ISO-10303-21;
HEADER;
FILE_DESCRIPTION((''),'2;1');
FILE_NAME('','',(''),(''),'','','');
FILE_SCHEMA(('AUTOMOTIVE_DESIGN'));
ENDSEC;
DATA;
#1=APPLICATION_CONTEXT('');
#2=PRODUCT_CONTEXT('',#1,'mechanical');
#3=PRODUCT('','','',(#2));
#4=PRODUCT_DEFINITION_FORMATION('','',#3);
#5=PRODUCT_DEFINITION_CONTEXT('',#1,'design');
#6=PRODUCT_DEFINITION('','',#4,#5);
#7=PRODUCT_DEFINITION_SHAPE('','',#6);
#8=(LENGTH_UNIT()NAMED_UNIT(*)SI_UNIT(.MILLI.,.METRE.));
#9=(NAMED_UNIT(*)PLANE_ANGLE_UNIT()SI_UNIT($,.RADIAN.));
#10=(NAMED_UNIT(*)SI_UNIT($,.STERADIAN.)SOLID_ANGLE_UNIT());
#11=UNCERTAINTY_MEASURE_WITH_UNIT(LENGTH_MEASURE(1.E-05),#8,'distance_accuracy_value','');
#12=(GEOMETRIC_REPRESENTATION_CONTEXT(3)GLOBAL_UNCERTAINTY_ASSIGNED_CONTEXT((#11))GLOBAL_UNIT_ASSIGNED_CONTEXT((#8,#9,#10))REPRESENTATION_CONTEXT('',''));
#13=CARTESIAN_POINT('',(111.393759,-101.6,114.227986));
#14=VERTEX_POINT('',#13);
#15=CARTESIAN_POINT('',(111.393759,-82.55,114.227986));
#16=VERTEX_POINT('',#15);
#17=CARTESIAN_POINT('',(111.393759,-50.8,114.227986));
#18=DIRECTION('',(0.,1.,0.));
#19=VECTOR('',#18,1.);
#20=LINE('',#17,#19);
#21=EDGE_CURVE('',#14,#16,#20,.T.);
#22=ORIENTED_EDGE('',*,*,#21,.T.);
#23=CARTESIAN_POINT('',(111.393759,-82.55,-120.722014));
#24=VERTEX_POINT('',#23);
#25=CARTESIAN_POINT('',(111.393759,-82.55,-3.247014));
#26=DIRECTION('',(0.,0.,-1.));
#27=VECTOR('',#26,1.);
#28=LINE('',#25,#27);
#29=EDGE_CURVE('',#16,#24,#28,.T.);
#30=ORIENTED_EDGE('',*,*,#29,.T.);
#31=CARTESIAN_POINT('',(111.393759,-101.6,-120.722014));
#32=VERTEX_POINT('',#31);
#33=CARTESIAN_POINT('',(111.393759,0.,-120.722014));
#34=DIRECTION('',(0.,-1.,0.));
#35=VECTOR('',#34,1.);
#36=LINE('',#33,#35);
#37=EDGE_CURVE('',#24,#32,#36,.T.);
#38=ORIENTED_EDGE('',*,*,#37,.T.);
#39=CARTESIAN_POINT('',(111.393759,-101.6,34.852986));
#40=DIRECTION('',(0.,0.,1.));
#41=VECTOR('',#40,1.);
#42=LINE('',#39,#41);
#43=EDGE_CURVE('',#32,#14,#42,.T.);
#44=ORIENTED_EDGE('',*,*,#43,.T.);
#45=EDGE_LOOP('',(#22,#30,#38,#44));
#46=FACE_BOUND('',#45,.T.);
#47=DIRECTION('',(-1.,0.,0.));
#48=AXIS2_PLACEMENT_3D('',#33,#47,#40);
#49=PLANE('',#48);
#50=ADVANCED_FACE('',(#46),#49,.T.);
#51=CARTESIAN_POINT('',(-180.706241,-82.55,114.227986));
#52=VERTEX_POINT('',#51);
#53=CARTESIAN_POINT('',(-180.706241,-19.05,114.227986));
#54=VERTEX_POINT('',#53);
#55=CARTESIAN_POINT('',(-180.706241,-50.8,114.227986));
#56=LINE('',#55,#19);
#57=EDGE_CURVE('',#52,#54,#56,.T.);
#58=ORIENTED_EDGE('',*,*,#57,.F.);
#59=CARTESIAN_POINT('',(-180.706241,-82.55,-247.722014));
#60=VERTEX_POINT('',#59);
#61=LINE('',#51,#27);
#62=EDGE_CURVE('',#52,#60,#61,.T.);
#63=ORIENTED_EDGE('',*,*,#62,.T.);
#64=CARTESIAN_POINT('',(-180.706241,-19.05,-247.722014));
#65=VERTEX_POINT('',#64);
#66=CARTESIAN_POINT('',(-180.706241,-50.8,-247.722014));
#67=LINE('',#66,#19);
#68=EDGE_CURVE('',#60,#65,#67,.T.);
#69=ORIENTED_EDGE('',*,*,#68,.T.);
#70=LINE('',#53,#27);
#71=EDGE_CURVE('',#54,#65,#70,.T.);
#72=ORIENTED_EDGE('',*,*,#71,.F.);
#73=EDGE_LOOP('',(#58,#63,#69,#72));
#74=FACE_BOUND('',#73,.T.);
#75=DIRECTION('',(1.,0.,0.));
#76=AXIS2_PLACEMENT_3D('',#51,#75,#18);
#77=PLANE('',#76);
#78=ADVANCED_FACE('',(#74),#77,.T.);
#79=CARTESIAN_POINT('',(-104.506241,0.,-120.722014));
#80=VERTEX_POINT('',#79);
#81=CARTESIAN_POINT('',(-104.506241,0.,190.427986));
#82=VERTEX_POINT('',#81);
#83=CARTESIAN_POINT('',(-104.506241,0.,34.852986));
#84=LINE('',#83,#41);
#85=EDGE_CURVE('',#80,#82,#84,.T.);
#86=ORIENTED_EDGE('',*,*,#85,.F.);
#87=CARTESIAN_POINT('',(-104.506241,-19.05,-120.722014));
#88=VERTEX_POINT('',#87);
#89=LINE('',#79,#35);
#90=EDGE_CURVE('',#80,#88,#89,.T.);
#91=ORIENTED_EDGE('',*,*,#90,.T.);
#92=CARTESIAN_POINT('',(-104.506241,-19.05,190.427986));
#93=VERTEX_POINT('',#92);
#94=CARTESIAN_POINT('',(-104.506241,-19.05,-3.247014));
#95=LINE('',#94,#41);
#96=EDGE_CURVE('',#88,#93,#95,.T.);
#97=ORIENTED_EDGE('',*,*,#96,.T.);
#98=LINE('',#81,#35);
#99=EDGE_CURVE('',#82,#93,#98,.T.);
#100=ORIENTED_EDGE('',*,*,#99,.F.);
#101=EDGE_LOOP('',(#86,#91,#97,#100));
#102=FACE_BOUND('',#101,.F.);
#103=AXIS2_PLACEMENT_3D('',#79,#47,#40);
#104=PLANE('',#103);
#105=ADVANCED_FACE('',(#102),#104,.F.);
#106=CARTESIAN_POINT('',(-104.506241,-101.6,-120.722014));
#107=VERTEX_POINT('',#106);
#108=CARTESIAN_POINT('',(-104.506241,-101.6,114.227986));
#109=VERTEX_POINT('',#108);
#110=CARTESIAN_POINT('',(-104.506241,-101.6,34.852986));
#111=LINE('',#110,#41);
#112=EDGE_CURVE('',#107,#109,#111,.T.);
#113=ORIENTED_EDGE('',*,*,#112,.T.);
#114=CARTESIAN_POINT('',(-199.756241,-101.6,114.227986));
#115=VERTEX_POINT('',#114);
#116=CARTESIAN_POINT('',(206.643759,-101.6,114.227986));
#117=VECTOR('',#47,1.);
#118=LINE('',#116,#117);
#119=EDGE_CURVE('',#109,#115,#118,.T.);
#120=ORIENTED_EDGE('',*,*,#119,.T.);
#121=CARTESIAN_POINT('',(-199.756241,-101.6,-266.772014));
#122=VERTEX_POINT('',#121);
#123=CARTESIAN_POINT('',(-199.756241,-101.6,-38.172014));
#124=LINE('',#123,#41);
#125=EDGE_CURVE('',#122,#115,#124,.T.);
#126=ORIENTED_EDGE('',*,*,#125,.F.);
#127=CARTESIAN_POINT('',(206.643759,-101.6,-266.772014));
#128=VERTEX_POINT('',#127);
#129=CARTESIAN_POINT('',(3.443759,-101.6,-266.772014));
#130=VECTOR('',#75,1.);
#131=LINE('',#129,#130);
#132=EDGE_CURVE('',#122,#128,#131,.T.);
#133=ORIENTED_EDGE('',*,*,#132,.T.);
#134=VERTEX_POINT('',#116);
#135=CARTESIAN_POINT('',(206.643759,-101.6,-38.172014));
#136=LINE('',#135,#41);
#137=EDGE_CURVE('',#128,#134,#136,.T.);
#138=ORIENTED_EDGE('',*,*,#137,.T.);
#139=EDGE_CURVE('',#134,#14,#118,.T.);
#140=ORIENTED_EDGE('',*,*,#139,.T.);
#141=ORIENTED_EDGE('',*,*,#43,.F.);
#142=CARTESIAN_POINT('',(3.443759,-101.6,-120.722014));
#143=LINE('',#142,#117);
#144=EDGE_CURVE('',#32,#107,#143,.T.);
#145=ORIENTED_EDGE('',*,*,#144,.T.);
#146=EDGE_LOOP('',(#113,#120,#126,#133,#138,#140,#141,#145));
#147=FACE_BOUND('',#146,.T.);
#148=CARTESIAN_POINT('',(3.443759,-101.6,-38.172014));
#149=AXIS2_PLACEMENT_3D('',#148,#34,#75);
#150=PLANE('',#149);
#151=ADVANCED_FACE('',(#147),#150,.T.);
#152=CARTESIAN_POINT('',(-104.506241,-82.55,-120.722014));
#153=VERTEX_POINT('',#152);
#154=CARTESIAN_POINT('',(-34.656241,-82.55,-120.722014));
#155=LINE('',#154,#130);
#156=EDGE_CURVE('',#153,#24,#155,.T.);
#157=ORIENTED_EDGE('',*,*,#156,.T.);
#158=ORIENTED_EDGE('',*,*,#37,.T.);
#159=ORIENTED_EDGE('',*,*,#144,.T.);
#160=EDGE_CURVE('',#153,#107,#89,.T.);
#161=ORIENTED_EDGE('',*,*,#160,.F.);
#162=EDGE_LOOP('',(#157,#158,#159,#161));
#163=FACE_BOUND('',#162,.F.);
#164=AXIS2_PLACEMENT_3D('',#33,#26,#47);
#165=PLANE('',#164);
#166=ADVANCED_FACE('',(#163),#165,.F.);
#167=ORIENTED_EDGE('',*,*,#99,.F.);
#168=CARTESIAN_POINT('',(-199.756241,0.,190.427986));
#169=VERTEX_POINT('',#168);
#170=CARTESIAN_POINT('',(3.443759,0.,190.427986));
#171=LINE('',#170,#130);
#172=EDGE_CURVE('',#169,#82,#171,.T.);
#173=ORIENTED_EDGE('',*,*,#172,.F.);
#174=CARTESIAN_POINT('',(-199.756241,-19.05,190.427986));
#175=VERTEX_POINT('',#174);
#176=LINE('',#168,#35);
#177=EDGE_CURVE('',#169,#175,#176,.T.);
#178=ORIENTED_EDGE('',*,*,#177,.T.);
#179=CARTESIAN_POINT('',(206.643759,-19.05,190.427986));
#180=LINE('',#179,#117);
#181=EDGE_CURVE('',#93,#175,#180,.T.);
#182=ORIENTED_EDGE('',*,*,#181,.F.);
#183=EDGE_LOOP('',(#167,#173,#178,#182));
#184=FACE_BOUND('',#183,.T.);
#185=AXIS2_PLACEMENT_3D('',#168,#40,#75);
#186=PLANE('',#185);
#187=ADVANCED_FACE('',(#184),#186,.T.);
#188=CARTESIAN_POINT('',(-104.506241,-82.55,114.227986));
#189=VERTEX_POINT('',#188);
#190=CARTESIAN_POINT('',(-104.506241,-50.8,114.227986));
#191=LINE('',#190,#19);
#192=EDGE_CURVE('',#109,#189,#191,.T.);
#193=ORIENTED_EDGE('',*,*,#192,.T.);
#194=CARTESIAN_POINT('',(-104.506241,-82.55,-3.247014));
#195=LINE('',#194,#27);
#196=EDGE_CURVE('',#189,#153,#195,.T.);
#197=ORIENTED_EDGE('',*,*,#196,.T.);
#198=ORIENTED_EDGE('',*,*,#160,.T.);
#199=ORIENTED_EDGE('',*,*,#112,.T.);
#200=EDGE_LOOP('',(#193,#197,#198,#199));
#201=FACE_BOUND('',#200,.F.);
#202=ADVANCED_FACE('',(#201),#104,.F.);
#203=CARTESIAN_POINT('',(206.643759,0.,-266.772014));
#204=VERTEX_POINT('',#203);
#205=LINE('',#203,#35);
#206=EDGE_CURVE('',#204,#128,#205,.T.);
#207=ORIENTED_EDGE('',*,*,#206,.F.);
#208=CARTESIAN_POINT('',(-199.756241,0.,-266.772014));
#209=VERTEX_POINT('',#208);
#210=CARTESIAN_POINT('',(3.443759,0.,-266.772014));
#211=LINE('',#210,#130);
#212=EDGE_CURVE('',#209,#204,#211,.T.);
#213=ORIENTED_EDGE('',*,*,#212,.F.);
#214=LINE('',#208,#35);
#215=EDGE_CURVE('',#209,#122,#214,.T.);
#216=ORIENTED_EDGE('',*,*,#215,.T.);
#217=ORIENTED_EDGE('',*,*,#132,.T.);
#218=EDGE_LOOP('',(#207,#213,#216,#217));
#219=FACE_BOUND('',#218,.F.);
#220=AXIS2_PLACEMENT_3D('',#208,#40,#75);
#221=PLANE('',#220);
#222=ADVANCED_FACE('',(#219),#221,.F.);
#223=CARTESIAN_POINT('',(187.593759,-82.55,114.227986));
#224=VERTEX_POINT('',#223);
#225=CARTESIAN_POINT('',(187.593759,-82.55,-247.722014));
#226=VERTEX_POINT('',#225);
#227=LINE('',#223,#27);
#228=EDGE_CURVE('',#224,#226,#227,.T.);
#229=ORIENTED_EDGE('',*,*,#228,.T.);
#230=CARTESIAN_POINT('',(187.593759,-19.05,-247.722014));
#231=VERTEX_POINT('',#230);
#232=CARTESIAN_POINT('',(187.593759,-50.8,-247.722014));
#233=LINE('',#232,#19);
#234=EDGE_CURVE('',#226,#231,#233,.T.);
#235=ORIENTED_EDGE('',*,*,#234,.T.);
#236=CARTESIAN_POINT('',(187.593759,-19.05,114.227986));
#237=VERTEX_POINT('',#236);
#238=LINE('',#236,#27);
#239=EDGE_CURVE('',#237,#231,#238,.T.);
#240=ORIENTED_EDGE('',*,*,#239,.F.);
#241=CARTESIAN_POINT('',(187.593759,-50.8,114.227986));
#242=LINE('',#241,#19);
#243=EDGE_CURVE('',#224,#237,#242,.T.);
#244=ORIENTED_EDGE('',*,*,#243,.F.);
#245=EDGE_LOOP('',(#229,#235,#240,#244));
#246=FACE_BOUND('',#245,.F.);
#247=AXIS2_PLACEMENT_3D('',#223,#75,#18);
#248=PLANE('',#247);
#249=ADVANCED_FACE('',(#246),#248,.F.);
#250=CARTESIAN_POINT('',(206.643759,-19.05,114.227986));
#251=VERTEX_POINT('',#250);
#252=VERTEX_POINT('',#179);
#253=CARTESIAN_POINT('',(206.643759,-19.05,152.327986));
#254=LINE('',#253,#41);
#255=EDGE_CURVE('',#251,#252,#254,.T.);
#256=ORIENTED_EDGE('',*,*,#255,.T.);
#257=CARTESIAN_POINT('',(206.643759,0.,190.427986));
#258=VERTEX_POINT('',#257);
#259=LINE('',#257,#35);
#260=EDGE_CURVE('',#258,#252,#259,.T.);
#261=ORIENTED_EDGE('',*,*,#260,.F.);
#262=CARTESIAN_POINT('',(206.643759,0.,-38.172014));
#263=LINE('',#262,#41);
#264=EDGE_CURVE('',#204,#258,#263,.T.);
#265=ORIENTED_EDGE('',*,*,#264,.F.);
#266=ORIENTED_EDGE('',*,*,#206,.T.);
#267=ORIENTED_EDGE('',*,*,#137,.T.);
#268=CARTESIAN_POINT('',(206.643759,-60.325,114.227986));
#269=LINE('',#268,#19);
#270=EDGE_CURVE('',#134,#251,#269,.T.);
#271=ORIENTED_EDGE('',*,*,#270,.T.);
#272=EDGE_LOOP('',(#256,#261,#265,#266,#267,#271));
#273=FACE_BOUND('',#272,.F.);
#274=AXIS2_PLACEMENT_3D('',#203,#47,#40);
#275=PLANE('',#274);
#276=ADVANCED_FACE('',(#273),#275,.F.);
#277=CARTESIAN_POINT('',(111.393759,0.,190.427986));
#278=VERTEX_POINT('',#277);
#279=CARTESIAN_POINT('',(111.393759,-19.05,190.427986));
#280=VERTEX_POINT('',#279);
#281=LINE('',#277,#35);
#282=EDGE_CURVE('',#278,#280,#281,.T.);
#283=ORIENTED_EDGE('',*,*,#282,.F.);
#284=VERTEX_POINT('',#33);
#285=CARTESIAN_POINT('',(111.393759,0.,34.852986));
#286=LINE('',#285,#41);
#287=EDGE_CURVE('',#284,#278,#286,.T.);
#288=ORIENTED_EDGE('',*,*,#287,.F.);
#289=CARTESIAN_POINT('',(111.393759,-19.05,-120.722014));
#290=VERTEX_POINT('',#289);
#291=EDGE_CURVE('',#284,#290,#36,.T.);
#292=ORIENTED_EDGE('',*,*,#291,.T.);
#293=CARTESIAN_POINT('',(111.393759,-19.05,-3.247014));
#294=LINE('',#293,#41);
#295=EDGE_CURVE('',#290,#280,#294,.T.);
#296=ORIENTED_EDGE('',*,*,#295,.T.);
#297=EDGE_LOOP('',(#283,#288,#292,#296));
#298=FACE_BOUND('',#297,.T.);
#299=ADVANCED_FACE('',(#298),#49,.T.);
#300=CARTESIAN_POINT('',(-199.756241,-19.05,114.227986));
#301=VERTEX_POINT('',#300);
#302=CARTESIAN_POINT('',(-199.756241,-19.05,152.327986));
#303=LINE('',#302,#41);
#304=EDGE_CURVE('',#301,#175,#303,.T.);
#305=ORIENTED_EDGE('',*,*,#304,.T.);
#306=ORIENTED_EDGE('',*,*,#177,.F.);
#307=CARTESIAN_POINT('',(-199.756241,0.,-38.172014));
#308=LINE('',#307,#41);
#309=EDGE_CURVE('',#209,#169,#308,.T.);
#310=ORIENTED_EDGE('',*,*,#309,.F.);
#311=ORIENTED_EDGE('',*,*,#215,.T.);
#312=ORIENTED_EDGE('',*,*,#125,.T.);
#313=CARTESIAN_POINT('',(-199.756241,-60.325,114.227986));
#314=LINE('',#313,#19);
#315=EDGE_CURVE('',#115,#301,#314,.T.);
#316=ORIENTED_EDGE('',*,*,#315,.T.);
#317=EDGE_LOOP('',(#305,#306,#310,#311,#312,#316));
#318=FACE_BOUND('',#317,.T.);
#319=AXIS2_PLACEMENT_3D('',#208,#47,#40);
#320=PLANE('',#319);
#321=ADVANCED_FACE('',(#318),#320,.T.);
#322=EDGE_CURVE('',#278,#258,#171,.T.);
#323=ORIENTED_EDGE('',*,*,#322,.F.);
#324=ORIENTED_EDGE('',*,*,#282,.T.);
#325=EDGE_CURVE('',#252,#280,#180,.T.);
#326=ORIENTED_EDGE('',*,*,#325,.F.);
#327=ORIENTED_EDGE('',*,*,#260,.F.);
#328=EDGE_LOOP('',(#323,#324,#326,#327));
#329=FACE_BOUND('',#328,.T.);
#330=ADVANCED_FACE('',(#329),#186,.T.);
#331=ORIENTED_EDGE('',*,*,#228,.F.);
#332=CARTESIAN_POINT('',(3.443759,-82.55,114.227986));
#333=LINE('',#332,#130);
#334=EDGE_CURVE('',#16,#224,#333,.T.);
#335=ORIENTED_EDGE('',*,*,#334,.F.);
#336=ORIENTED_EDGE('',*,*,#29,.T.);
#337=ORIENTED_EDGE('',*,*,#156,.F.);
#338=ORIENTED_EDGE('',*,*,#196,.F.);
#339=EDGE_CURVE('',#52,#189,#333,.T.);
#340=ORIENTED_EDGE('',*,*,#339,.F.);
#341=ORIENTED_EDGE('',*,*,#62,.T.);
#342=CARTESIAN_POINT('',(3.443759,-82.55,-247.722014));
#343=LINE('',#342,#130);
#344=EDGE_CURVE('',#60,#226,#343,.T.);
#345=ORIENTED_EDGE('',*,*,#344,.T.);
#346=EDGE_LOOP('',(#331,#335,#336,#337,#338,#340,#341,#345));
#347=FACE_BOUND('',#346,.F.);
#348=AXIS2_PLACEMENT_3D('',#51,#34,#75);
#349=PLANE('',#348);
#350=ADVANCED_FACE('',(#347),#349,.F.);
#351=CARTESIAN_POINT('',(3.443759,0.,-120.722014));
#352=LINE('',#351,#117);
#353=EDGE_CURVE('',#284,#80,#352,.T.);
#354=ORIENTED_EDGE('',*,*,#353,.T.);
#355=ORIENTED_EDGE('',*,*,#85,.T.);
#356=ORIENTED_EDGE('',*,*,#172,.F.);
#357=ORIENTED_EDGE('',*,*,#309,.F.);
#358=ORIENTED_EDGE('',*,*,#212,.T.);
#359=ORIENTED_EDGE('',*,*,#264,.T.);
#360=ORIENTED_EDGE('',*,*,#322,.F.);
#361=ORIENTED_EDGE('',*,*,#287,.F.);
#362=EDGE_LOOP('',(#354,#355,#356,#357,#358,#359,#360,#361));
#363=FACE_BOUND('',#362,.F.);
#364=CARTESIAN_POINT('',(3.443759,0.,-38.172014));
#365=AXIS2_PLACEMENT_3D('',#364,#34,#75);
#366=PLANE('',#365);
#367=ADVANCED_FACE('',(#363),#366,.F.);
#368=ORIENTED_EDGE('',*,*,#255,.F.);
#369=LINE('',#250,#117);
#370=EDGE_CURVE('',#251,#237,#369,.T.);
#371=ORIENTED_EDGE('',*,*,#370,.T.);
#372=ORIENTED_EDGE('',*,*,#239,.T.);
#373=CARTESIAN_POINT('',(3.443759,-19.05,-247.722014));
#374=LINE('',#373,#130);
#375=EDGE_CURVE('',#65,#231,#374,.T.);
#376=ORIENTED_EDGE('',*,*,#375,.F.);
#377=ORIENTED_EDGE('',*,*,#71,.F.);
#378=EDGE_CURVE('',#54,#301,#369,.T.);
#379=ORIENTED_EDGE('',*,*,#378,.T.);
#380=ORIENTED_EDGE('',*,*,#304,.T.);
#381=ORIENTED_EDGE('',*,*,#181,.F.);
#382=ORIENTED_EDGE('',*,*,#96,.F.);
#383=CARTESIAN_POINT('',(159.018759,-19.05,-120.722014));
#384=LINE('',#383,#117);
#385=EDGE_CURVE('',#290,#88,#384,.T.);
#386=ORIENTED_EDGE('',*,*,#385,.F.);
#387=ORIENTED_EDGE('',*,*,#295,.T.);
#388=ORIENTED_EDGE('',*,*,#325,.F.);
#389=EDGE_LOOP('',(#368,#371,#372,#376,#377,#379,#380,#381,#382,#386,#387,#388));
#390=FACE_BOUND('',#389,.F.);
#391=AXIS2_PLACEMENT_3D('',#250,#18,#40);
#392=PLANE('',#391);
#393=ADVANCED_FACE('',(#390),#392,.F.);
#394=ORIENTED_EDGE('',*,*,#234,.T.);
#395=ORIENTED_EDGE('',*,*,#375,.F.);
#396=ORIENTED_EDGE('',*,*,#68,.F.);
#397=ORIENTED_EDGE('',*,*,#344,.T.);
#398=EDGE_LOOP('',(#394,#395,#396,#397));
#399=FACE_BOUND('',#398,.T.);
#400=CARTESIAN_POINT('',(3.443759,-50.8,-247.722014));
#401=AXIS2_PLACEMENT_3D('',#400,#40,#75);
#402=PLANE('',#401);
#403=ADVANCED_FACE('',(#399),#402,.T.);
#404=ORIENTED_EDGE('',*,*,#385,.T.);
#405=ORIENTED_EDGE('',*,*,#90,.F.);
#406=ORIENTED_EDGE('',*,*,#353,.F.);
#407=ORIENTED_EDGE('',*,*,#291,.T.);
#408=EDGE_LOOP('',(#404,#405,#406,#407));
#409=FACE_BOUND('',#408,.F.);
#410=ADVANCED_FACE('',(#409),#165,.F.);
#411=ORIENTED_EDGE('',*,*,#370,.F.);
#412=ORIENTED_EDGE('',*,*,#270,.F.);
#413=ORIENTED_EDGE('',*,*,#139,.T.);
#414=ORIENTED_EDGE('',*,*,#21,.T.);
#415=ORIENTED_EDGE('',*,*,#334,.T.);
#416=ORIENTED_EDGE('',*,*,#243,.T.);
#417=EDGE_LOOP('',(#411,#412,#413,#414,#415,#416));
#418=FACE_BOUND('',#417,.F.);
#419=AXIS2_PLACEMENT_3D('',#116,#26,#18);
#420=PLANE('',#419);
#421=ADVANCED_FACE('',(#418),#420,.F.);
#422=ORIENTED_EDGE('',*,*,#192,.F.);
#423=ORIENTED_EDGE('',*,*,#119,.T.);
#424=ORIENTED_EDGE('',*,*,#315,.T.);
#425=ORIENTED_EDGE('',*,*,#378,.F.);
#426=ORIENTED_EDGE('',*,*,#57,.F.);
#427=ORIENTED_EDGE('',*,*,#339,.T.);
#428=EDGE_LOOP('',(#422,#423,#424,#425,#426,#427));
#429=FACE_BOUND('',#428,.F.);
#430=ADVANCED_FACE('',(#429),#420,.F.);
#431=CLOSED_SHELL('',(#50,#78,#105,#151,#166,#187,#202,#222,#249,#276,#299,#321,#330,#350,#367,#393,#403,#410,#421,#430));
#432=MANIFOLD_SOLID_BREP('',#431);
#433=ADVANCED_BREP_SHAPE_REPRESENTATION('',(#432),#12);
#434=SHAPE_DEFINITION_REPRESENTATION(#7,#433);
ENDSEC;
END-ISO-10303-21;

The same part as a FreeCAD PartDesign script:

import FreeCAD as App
import Part
import Sketcher
Q = App.Units.Quantity


def add_polygon(sketch, points):
    """Adds a closed chain of lines whose ends are joined by coincident constraints."""
    first, n = sketch.GeometryCount, len(points)
    for a, b in zip(points, points[1:] + points[:1]):
        sketch.addGeometry(Part.LineSegment(App.Vector(*a, 0), App.Vector(*b, 0)), False)
    for i in range(n):
        sketch.addConstraint(Sketcher.Constraint("Coincident", first + i, 2, first + (i + 1) % n, 1))

doc = App.newDocument("Part")
body = doc.addObject("PartDesign::Body", "Body")

sketch1 = doc.addObject("Sketcher::SketchObject", "Sketch")
body.addObject(sketch1)
sketch1.AttachmentSupport = (doc.XZ_Plane, [""])
sketch1.MapMode = "FlatFace"
add_polygon(sketch1, [(-200, 190), (-200, -267), (207, -267), (207, 190)])
sketch1.addConstraint([
    Sketcher.Constraint("Vertical", 0),
    Sketcher.Constraint("Horizontal", 1),
    Sketcher.Constraint("Vertical", 2),
    Sketcher.Constraint("Horizontal", 3),
    Sketcher.Constraint("DistanceX", 1, 1, 1, 2, Q("16 in")),
    Sketcher.Constraint("DistanceY", 0, 2, 0, 1, Q("18 in")),
    Sketcher.Constraint("DistanceX", 0, 2, -1, 1, 199.756241),
    Sketcher.Constraint("DistanceY", 0, 2, -1, 1, 266.772014),
])
pad1 = doc.addObject("PartDesign::Pad", "Pad")
body.addObject(pad1)
pad1.Profile = sketch1
pad1.Length = Q("4 in")

sketch2 = doc.addObject("Sketcher::SketchObject", "Sketch001")
body.addObject(sketch2)
sketch2.AttachmentSupport = (doc.YZ_Plane, [""])
sketch2.MapMode = "FlatFace"
sketch2.AttachmentOffset = App.Placement(App.Vector(0, 0, 206.643759), App.Rotation())
add_polygon(sketch2, [(-102, 190), (-102, 114), (-19, 114), (-19, 190)])
sketch2.addConstraint([
    Sketcher.Constraint("Vertical", 0),
    Sketcher.Constraint("Horizontal", 1),
    Sketcher.Constraint("Vertical", 2),
    Sketcher.Constraint("Horizontal", 3),
    Sketcher.Constraint("DistanceY", 0, 2, 0, 1, Q("3 in")),
    Sketcher.Constraint("DistanceX", 0, 2, -1, 1, Q("4 in")),
    Sketcher.Constraint("DistanceX", 1, 1, 1, 2, Q("3.25 in")),
    Sketcher.Constraint("DistanceY", -1, 1, 0, 2, 114.227986),
])
pocket1 = doc.addObject("PartDesign::Pocket", "Pocket")
body.addObject(pocket1)
pocket1.Profile = sketch2
pocket1.Length = Q("16 in")

sketch3 = doc.addObject("Sketcher::SketchObject", "Sketch002")
body.addObject(sketch3)
sketch3.AttachmentSupport = (doc.XY_Plane, [""])
sketch3.MapMode = "FlatFace"
sketch3.AttachmentOffset = App.Placement(App.Vector(0, 0, 114.227986), App.Rotation())
add_polygon(sketch3, [(-181, -19), (-181, -83), (188, -83), (188, -19)])
sketch3.addConstraint([
    Sketcher.Constraint("Vertical", 0),
    Sketcher.Constraint("Horizontal", 1),
    Sketcher.Constraint("Vertical", 2),
    Sketcher.Constraint("Horizontal", 3),
    Sketcher.Constraint("DistanceX", 1, 1, 1, 2, Q("14.5 in")),
    Sketcher.Constraint("DistanceY", 0, 2, 0, 1, Q("2.5 in")),
    Sketcher.Constraint("DistanceY", 0, 2, -1, 1, Q("3.25 in")),
    Sketcher.Constraint("DistanceX", 0, 2, -1, 1, 180.706241),
])
pocket2 = doc.addObject("PartDesign::Pocket", "Pocket001")
body.addObject(pocket2)
pocket2.Profile = sketch3
pocket2.Length = Q("14.25 in")

sketch4 = doc.addObject("Sketcher::SketchObject", "Sketch003")
body.addObject(sketch4)
sketch4.AttachmentSupport = (doc.XZ_Plane, [""])
sketch4.MapMode = "FlatFace"
add_polygon(sketch4, [(111, 190), (111, -121), (-105, -121), (-105, 190)])
sketch4.addConstraint([
    Sketcher.Constraint("Vertical", 0),
    Sketcher.Constraint("Horizontal", 1),
    Sketcher.Constraint("Vertical", 2),
    Sketcher.Constraint("Horizontal", 3),
    Sketcher.Constraint("DistanceX", 1, 2, 1, 1, Q("8.5 in")),
    Sketcher.Constraint("DistanceY", 0, 2, 0, 1, Q("12.25 in")),
    Sketcher.Constraint("DistanceX", -1, 1, 0, 2, 111.393759),
    Sketcher.Constraint("DistanceY", 0, 2, -1, 1, 120.722014),
])
pocket3 = doc.addObject("PartDesign::Pocket", "Pocket002")
body.addObject(pocket3)
pocket3.Profile = sketch4
pocket3.Length = Q("4 in")
pocket3.Reversed = True

doc.recompute()
